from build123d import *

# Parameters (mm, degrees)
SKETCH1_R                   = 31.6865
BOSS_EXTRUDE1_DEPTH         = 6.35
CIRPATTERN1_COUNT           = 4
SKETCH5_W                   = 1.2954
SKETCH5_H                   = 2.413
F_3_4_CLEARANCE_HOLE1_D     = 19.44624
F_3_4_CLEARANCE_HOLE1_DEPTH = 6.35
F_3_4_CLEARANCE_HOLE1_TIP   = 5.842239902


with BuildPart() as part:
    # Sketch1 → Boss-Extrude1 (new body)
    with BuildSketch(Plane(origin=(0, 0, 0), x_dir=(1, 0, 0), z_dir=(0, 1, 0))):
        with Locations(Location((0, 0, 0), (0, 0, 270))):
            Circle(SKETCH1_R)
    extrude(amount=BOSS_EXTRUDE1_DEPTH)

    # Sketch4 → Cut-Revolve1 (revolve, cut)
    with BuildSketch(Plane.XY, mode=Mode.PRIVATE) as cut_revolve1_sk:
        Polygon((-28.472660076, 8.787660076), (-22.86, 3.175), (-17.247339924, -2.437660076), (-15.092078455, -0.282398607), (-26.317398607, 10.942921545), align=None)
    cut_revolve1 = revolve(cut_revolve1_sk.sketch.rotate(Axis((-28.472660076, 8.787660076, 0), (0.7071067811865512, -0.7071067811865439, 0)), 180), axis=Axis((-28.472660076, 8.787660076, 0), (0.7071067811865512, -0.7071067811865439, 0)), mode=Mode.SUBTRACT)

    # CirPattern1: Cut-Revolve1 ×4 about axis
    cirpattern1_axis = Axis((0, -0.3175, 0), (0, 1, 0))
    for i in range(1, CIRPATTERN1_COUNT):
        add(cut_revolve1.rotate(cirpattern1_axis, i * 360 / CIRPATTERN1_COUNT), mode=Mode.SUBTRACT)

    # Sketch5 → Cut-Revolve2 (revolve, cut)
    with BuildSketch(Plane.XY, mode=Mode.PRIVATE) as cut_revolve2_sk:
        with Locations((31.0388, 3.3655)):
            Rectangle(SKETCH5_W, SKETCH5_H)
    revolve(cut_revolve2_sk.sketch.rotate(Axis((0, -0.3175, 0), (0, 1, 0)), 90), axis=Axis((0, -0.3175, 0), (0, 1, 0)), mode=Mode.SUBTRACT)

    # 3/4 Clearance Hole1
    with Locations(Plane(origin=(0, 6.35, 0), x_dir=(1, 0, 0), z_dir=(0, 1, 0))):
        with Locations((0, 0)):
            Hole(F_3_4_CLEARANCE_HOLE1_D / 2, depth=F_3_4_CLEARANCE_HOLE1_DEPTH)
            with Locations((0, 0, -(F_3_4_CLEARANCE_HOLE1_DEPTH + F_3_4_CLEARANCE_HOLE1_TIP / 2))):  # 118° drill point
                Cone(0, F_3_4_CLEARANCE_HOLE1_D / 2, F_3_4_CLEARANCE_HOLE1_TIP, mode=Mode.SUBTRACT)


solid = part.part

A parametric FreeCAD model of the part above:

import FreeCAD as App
import Part
import Sketcher
Q = App.Units.Quantity


def add_polygon(sketch, points):
    """Adds a closed chain of lines whose ends are joined by coincident constraints."""
    first, n = sketch.GeometryCount, len(points)
    for a, b in zip(points, points[1:] + points[:1]):
        sketch.addGeometry(Part.LineSegment(App.Vector(*a, 0), App.Vector(*b, 0)), False)
    for i in range(n):
        sketch.addConstraint(Sketcher.Constraint("Coincident", first + i, 2, first + (i + 1) % n, 1))

doc = App.newDocument("Part")
body = doc.addObject("PartDesign::Body", "Body")

# Sketch on XZ plane
sketch1 = doc.addObject("Sketcher::SketchObject", "Sketch")
body.addObject(sketch1)
sketch1.AttachmentSupport = (doc.XZ_Plane, [""])
sketch1.MapMode = "FlatFace"
sketch1.addGeometry(Part.Circle(App.Vector(0, 0, 0), App.Vector(0, 0, 1), 32), False)
sketch1.addConstraint(Sketcher.Constraint("Coincident", 0, 3, -1, 1))
sketch1.addConstraint(Sketcher.Constraint("Diameter", 0, Q("2.495 in")))
pad1 = doc.addObject("PartDesign::Pad", "Pad")
body.addObject(pad1)
pad1.Profile = sketch1
pad1.Length = Q("0.25 in")
pad1.Reversed = True

# Sketch on XY plane
sketch2 = doc.addObject("Sketcher::SketchObject", "Sketch001")
body.addObject(sketch2)
sketch2.AttachmentSupport = (doc.XY_Plane, [""])
sketch2.MapMode = "FlatFace"
add_polygon(sketch2, [(-28.5, 8.8), (-17.2, -2.4), (-15.1, -0.3), (-26.3, 10.9)])  # lines 0-3
sketch2.addGeometry(Part.LineSegment(App.Vector(-28.5, 8.8, 0), App.Vector(-17.2, -2.4, 0)), True)  # axis
sketch2.addConstraint(Sketcher.Constraint("Coincident", 4, 1, 3, 2))
sketch2.addConstraint(Sketcher.Constraint("Coincident", 4, 2, 0, 2))
sketch2.addConstraint(Sketcher.Constraint("Perpendicular", 0, 1))
sketch2.addConstraint(Sketcher.Constraint("Perpendicular", 1, 2))
sketch2.addConstraint(Sketcher.Constraint("Perpendicular", 2, 3))
sketch2.addConstraint(Sketcher.Constraint("Angle", 0, Q("-45 deg")))
sketch2.addConstraint(Sketcher.Constraint("Distance", 1, Q("0.12 in")))
sketch2.addConstraint(Sketcher.Constraint("Distance", 0, Q("0.625 in")))
sketch2.addConstraint(Sketcher.Constraint("DistanceY", 1, 2, -1, 1, Q("0.282399 mm")))
sketch2.addConstraint(Sketcher.Constraint("DistanceX", 2, 2, -1, 1, Q("26.317399 mm")))
groove = doc.addObject("PartDesign::Groove", "Groove")
body.addObject(groove)
groove.Profile = sketch2
groove.ReferenceAxis = (sketch2, ["Axis0"])
groove.Angle = 360
doc.recompute()

polarpattern = doc.addObject("PartDesign::PolarPattern", "PolarPattern")
body.addObject(polarpattern)
polarpattern.Originals = [groove]
polarpattern.Axis = (doc.Y_Axis, [""])
polarpattern.Angle = 360
polarpattern.Occurrences = 4
body.Tip = polarpattern

# Sketch on XY plane
sketch3 = doc.addObject("Sketcher::SketchObject", "Sketch002")
body.addObject(sketch3)
sketch3.AttachmentSupport = (doc.XY_Plane, [""])
sketch3.MapMode = "FlatFace"
add_polygon(sketch3, [(30.4, 4.6), (30.4, 2.2), (31.7, 2.2), (31.7, 4.6)])  # lines 0-3
sketch3.addConstraint(Sketcher.Constraint("Vertical", 0))
sketch3.addConstraint(Sketcher.Constraint("Horizontal", 1))
sketch3.addConstraint(Sketcher.Constraint("Vertical", 2))
sketch3.addConstraint(Sketcher.Constraint("Horizontal", 3))
sketch3.addConstraint(Sketcher.Constraint("DistanceX", 1, 1, 1, 2, Q("0.051 in")))
sketch3.addConstraint(Sketcher.Constraint("DistanceY", 0, 2, 0, 1, Q("0.095 in")))
sketch3.addConstraint(Sketcher.Constraint("DistanceY", -1, 1, 2, 2, Q("0.18 in")))
sketch3.addConstraint(Sketcher.Constraint("DistanceX", -1, 1, 0, 2, Q("1.1965 in")))
groove2 = doc.addObject("PartDesign::Groove", "Groove001")
body.addObject(groove2)
groove2.Profile = sketch3
groove2.ReferenceAxis = (sketch3, ["V_Axis"])
groove2.Angle = 360

# Sketch on XZ plane
sketch4 = doc.addObject("Sketcher::SketchObject", "Sketch003")
body.addObject(sketch4)
sketch4.AttachmentSupport = (doc.XZ_Plane, [""])
sketch4.MapMode = "FlatFace"
sketch4.AttachmentOffset = App.Placement(App.Vector(0, 0, -0.25 * 25.4), App.Rotation())
sketch4.addGeometry(Part.Circle(App.Vector(0, 0, 0), App.Vector(0, 0, 1), 10), False)
sketch4.addConstraint(Sketcher.Constraint("Coincident", 0, 3, -1, 1))
sketch4.addConstraint(Sketcher.Constraint("Diameter", 0, Q("0.7656 in")))
doc.recompute()
hole = doc.addObject("PartDesign::Hole", "Hole")
body.addObject(hole)
hole.Profile = sketch4
hole.ThreadType = "None"
hole.Diameter = Q("0.7656 in")
hole.DepthType = "Dimension"
hole.Depth = Q("0.25 in")
hole.DrillPoint = "Angled"
hole.DrillPointAngle = 118
hole.Reversed = True

doc.recompute()
